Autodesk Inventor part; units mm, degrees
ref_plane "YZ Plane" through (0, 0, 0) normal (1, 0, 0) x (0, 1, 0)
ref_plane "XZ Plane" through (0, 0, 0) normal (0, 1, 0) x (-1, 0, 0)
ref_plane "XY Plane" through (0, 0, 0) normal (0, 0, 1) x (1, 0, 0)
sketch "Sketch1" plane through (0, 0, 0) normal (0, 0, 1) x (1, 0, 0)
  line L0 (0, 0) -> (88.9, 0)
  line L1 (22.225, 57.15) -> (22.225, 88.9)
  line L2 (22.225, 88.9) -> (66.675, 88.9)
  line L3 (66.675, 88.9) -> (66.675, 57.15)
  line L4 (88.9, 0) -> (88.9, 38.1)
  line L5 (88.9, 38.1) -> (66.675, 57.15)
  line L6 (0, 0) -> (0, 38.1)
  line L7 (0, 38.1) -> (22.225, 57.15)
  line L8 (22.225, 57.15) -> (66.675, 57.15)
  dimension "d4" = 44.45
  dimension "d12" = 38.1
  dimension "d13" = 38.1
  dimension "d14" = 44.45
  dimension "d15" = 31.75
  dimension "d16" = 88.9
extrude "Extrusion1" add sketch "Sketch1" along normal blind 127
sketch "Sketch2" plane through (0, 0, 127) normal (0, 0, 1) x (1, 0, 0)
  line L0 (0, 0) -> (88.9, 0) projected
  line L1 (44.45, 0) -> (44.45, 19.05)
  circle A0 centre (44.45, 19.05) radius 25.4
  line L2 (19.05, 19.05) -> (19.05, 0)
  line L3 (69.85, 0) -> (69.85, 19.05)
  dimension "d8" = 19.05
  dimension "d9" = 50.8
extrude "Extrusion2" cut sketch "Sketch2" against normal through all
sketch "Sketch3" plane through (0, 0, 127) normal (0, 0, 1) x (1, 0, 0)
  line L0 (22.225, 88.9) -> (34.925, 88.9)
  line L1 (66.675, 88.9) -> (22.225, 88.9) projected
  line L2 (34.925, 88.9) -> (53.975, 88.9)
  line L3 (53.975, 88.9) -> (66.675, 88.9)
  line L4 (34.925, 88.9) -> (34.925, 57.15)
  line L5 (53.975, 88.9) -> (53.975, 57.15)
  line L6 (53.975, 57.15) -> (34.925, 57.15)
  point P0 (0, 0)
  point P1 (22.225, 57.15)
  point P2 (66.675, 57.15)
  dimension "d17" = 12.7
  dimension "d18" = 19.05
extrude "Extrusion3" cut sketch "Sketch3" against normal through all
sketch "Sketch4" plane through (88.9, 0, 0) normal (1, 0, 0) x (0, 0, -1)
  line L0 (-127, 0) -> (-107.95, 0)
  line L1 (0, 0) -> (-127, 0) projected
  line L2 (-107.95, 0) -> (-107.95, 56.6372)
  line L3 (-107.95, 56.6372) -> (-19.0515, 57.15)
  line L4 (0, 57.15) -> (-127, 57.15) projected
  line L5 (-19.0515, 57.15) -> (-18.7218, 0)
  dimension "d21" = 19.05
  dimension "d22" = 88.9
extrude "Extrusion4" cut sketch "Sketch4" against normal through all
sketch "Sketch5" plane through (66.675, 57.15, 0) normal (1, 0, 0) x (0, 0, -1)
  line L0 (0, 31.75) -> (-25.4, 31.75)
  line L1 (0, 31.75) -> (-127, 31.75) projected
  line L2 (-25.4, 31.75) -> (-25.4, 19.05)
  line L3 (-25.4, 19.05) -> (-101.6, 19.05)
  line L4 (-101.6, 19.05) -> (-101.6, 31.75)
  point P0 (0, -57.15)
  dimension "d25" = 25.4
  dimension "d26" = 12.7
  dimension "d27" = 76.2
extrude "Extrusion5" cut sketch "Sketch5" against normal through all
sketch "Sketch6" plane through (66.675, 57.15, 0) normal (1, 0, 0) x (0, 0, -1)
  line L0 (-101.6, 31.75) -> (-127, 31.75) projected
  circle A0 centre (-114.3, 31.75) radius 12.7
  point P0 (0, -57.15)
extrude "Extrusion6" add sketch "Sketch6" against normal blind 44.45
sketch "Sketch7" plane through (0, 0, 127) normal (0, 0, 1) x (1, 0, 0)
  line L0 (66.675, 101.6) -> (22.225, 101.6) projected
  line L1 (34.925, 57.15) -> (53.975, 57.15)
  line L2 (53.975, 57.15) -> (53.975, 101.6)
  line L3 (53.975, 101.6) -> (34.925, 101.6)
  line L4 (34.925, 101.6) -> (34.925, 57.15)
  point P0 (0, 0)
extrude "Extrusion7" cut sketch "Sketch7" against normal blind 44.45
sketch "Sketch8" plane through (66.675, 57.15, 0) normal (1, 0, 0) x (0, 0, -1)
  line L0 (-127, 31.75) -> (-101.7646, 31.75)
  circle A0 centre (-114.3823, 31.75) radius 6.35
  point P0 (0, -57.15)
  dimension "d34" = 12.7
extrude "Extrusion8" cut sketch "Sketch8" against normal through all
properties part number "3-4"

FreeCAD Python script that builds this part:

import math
import FreeCAD as App
import Part
import Sketcher

V = App.Vector
Q = App.Units.Quantity


def add_polygon(sketch, points):
    """Adds a closed chain of lines whose ends are joined by coincident constraints."""
    first, n = sketch.GeometryCount, len(points)
    for a, b in zip(points, points[1:] + points[:1]):
        sketch.addGeometry(Part.LineSegment(App.Vector(*a, 0), App.Vector(*b, 0)), False)
    for i in range(n):
        sketch.addConstraint(Sketcher.Constraint("Coincident", first + i, 2, first + (i + 1) % n, 1))

doc = App.newDocument("Part")
params = doc.addObject("Spreadsheet::Sheet", "Params")
for row, (alias, value) in enumerate([
    ("sketch1_width", "3.5 in"),
    ("sketch1_height", "1.5 in"),
    ("sketch1_width2", "1.75 in"),
    ("sketch1_height2", "1.25 in"),
    ("pad1_length", "5 in"),
    ("sketch2_radius", "1 in"),
    ("sketch2_height", "0.75 in"),
    ("sketch3_width", "0.75 in"),
    ("sketch3_height", "1.25 in"),
    ("sketch4_length", "3.5 in"),
    ("sketch5_height", "3 in"),
    ("sketch5_width", "0.5 in"),
    ("sketch6_diameter", "1 in"),
    ("pad2_length", "1.75 in"),
    ("sketch7_width", "0.75 in"),
    ("sketch7_height", "1.75 in"),
    ("pocket5_length", "1.75 in"),
    ("sketch8_diameter", "0.5 in"),
], start=1):
    params.set(f"A{row}", alias)
    params.set(f"B{row}", "=" + value)
    params.setAlias(f"B{row}", alias)

body = doc.addObject("PartDesign::Body", "Body")

sketch1 = body.newObject("Sketcher::SketchObject", "Sketch")
sketch1.AttachmentSupport = (doc.getObject("XY_Plane"), [""])
sketch1.MapMode = "FlatFace"
add_polygon(sketch1, [(0, 38), (0, 0), (89, 0), (89, 38), (67, 57), (67, 89), (22, 89), (22, 57)])
sketch1.addConstraint(Sketcher.Constraint("Vertical", 0))
sketch1.addConstraint(Sketcher.Constraint("Horizontal", 1))
sketch1.addConstraint(Sketcher.Constraint("Vertical", 2))
sketch1.addConstraint(Sketcher.Constraint("Vertical", 4))
sketch1.addConstraint(Sketcher.Constraint("Horizontal", 5))
sketch1.addConstraint(Sketcher.Constraint("Vertical", 6))
sketch1.addConstraint(Sketcher.Constraint("Coincident", 0, 2, -1, 1))
sketch1.addConstraint(Sketcher.Constraint("Horizontal", 3, 2, 6, 2))
sketch1.addConstraint(Sketcher.Constraint("Horizontal", 2, 2, 7, 2))
sketch1.addConstraint(Sketcher.Constraint("Equal", 3, 7))
sketch1.addConstraint(Sketcher.Constraint("DistanceX", 1, 1, 1, 2, Q("3.5 in")))
sketch1.addConstraint(Sketcher.Constraint("DistanceY", 0, 2, 0, 1, Q("1.5 in")))
sketch1.addConstraint(Sketcher.Constraint("DistanceX", 5, 2, 5, 1, Q("1.75 in")))
sketch1.addConstraint(Sketcher.Constraint("DistanceY", 4, 1, 4, 2, Q("1.25 in")))
sketch1.addConstraint(Sketcher.Constraint("DistanceY", -1, 1, 4, 2, Q("3.5 in")))
sketch1.setExpression("Constraints[18]", "Params.sketch1_width")
sketch1.setExpression("Constraints[19]", "Params.sketch1_height")
sketch1.setExpression("Constraints[20]", "Params.sketch1_width2")
sketch1.setExpression("Constraints[21]", "Params.sketch1_height2")
pad1 = body.newObject("PartDesign::Pad", "Pad")
pad1.Profile = sketch1
pad1.setExpression("Length", "Params.pad1_length")

sketch2 = body.newObject("Sketcher::SketchObject", "Sketch001")
sketch2.AttachmentSupport = (doc.getObject("XY_Plane"), [""])
sketch2.MapMode = "FlatFace"
sketch2.AttachmentOffset = App.Placement(V(0, 0, 5 * 25.4), App.Rotation())
sketch2.addGeometry(Part.LineSegment(V(19, 19, 0), V(19, 0, 0)), False)
sketch2.addGeometry(Part.LineSegment(V(19, 0, 0), V(28, 0, 0)), False)
sketch2.addGeometry(Part.ArcOfCircle(Part.Circle(V(44, 19, 0), V(0, 0, 1), 25), math.radians(-131), math.radians(-49)), False)
sketch2.addGeometry(Part.LineSegment(V(61, 0, 0), V(70, 0, 0)), False)
sketch2.addGeometry(Part.LineSegment(V(70, 0, 0), V(70, 19, 0)), False)
sketch2.addGeometry(Part.ArcOfCircle(Part.Circle(V(44, 19, 0), V(0, 0, 1), 25), math.radians(0), math.radians(180)), False)
sketch2.addConstraint(Sketcher.Constraint("Coincident", 0, 2, 1, 1))
sketch2.addConstraint(Sketcher.Constraint("Coincident", 1, 2, 2, 1))
sketch2.addConstraint(Sketcher.Constraint("Coincident", 2, 2, 3, 1))
sketch2.addConstraint(Sketcher.Constraint("Coincident", 3, 2, 4, 1))
sketch2.addConstraint(Sketcher.Constraint("Tangent", 4, 2, 5, 1))
sketch2.addConstraint(Sketcher.Constraint("Tangent", 5, 2, 0, 1))
sketch2.addConstraint(Sketcher.Constraint("Vertical", 0))
sketch2.addConstraint(Sketcher.Constraint("Horizontal", 1))
sketch2.addConstraint(Sketcher.Constraint("Horizontal", 3))
sketch2.addConstraint(Sketcher.Constraint("Vertical", 4))
sketch2.addConstraint(Sketcher.Constraint("Coincident", 5, 3, 2, 3))
sketch2.addConstraint(Sketcher.Constraint("Equal", 2, 5))
sketch2.addConstraint(Sketcher.Constraint("PointOnObject", 0, 2, -1))
sketch2.addConstraint(Sketcher.Constraint("PointOnObject", 2, 2, -1))
sketch2.addConstraint(Sketcher.Constraint("Radius", 2, Q("1 in")))
sketch2.addConstraint(Sketcher.Constraint("DistanceY", 0, 2, 0, 1, Q("0.75 in")))
sketch2.addConstraint(Sketcher.Constraint("DistanceX", -1, 1, 0, 2, Q("0.75 in")))
sketch2.setExpression("Constraints[14]", "Params.sketch2_radius")
sketch2.setExpression("Constraints[15]", "Params.sketch2_height")
pocket1 = body.newObject("PartDesign::Pocket", "Pocket")
pocket1.Profile = sketch2
pocket1.Type = "ThroughAll"

sketch3 = body.newObject("Sketcher::SketchObject", "Sketch002")
sketch3.AttachmentSupport = (doc.getObject("XY_Plane"), [""])
sketch3.MapMode = "FlatFace"
sketch3.AttachmentOffset = App.Placement(V(0, 0, 5 * 25.4), App.Rotation())
add_polygon(sketch3, [(54, 57), (54, 89), (35, 89), (35, 57)])
sketch3.addConstraint(Sketcher.Constraint("Vertical", 0))
sketch3.addConstraint(Sketcher.Constraint("Horizontal", 1))
sketch3.addConstraint(Sketcher.Constraint("Vertical", 2))
sketch3.addConstraint(Sketcher.Constraint("Horizontal", 3))
sketch3.addConstraint(Sketcher.Constraint("DistanceX", 1, 2, 1, 1, Q("0.75 in")))
sketch3.addConstraint(Sketcher.Constraint("DistanceY", 0, 1, 0, 2, Q("1.25 in")))
sketch3.addConstraint(Sketcher.Constraint("DistanceY", -1, 1, 0, 2, Q("3.5 in")))
sketch3.addConstraint(Sketcher.Constraint("DistanceX", -1, 1, 0, 2, Q("2.125 in")))
sketch3.setExpression("Constraints[8]", "Params.sketch3_width")
sketch3.setExpression("Constraints[9]", "Params.sketch3_height")
pocket2 = body.newObject("PartDesign::Pocket", "Pocket001")
pocket2.Profile = sketch3
pocket2.Type = "ThroughAll"

sketch4 = body.newObject("Sketcher::SketchObject", "Sketch003")
sketch4.AttachmentSupport = (doc.getObject("YZ_Plane"), [""])
sketch4.MapMode = "FlatFace"
sketch4.AttachmentOffset = App.Placement(V(0, 0, 3.5 * 25.4), App.Rotation())
add_polygon(sketch4, [(0, 108), (0, 19), (57, 19), (57, 108)])
sketch4.addConstraint(Sketcher.Constraint("Vertical", 0))
sketch4.addConstraint(Sketcher.Constraint("Horizontal", 3))
sketch4.addConstraint(Sketcher.Constraint("PointOnObject", 0, 2, -2))
sketch4.addConstraint(Sketcher.Constraint("Perpendicular", 1, 2))
sketch4.addConstraint(Sketcher.Constraint("Distance", 2, Q("3.5 in")))
sketch4.addConstraint(Sketcher.Constraint("DistanceX", -1, 1, 1, 2, Q("2.25 in")))
sketch4.addConstraint(Sketcher.Constraint("DistanceY", -1, 1, 2, 2, Q("4.25 in")))
sketch4.addConstraint(Sketcher.Constraint("Angle", 1, Q("0.3305 deg")))
sketch4.setExpression("Constraints[8]", "Params.sketch4_length")
pocket3 = body.newObject("PartDesign::Pocket", "Pocket002")
pocket3.Profile = sketch4
pocket3.Type = "ThroughAll"

sketch5 = body.newObject("Sketcher::SketchObject", "Sketch004")
sketch5.AttachmentSupport = (doc.getObject("YZ_Plane"), [""])
sketch5.MapMode = "FlatFace"
sketch5.AttachmentOffset = App.Placement(V(0, 0, 2.625 * 25.4), App.Rotation())
add_polygon(sketch5, [(76, 25), (89, 25), (89, 102), (76, 102)])
sketch5.addConstraint(Sketcher.Constraint("Horizontal", 0))
sketch5.addConstraint(Sketcher.Constraint("Vertical", 1))
sketch5.addConstraint(Sketcher.Constraint("Horizontal", 2))
sketch5.addConstraint(Sketcher.Constraint("Vertical", 3))
sketch5.addConstraint(Sketcher.Constraint("DistanceY", 1, 1, 1, 2, Q("3 in")))
sketch5.addConstraint(Sketcher.Constraint("DistanceX", 0, 1, 0, 2, Q("0.5 in")))
sketch5.addConstraint(Sketcher.Constraint("DistanceY", -1, 1, 0, 2, Q("1 in")))
sketch5.addConstraint(Sketcher.Constraint("DistanceX", -1, 1, 2, 2, Q("3 in")))
sketch5.setExpression("Constraints[8]", "Params.sketch5_height")
sketch5.setExpression("Constraints[9]", "Params.sketch5_width")
pocket4 = body.newObject("PartDesign::Pocket", "Pocket003")
pocket4.Profile = sketch5
pocket4.Type = "ThroughAll"

sketch6 = body.newObject("Sketcher::SketchObject", "Sketch005")
sketch6.AttachmentSupport = (doc.getObject("YZ_Plane"), [""])
sketch6.MapMode = "FlatFace"
sketch6.AttachmentOffset = App.Placement(V(0, 0, 2.625 * 25.4), App.Rotation())
sketch6.addGeometry(Part.Circle(V(89, 114, 0), V(0, 0, 1), 13), False)
sketch6.addConstraint(Sketcher.Constraint("Diameter", 0, Q("1 in")))
sketch6.addConstraint(Sketcher.Constraint("DistanceX", -1, 1, 0, 3, Q("3.5 in")))
sketch6.addConstraint(Sketcher.Constraint("DistanceY", -1, 1, 0, 3, Q("4.5 in")))
sketch6.setExpression("Constraints[0]", "Params.sketch6_diameter")
pad2 = body.newObject("PartDesign::Pad", "Pad001")
pad2.Profile = sketch6
pad2.setExpression("Length", "Params.pad2_length")
pad2.Reversed = True

sketch7 = body.newObject("Sketcher::SketchObject", "Sketch006")
sketch7.AttachmentSupport = (doc.getObject("XY_Plane"), [""])
sketch7.MapMode = "FlatFace"
sketch7.AttachmentOffset = App.Placement(V(0, 0, 5 * 25.4), App.Rotation())
add_polygon(sketch7, [(54, 57), (54, 102), (35, 102), (35, 57)])
sketch7.addConstraint(Sketcher.Constraint("Vertical", 0))
sketch7.addConstraint(Sketcher.Constraint("Horizontal", 1))
sketch7.addConstraint(Sketcher.Constraint("Vertical", 2))
sketch7.addConstraint(Sketcher.Constraint("Horizontal", 3))
sketch7.addConstraint(Sketcher.Constraint("DistanceY", -1, 1, 0, 2, Q("4 in")))
sketch7.addConstraint(Sketcher.Constraint("DistanceX", 1, 2, 1, 1, Q("0.75 in")))
sketch7.addConstraint(Sketcher.Constraint("DistanceY", 0, 1, 0, 2, Q("1.75 in")))
sketch7.addConstraint(Sketcher.Constraint("DistanceX", -1, 1, 0, 2, Q("2.125 in")))
sketch7.setExpression("Constraints[9]", "Params.sketch7_width")
sketch7.setExpression("Constraints[10]", "Params.sketch7_height")
pocket5 = body.newObject("PartDesign::Pocket", "Pocket004")
pocket5.Profile = sketch7
pocket5.setExpression("Length", "Params.pocket5_length")

sketch8 = body.newObject("Sketcher::SketchObject", "Sketch007")
sketch8.AttachmentSupport = (doc.getObject("YZ_Plane"), [""])
sketch8.MapMode = "FlatFace"
sketch8.AttachmentOffset = App.Placement(V(0, 0, 2.625 * 25.4), App.Rotation())
sketch8.addGeometry(Part.Circle(V(89, 114, 0), V(0, 0, 1), 6), False)
sketch8.addConstraint(Sketcher.Constraint("Diameter", 0, Q("0.5 in")))
sketch8.addConstraint(Sketcher.Constraint("DistanceX", -1, 1, 0, 3, Q("3.5 in")))
sketch8.addConstraint(Sketcher.Constraint("DistanceY", -1, 1, 0, 3, Q("114.3823 mm")))
sketch8.setExpression("Constraints[0]", "Params.sketch8_diameter")
pocket6 = body.newObject("PartDesign::Pocket", "Pocket005")
pocket6.Profile = sketch8
pocket6.Type = "ThroughAll"

doc.recompute()
